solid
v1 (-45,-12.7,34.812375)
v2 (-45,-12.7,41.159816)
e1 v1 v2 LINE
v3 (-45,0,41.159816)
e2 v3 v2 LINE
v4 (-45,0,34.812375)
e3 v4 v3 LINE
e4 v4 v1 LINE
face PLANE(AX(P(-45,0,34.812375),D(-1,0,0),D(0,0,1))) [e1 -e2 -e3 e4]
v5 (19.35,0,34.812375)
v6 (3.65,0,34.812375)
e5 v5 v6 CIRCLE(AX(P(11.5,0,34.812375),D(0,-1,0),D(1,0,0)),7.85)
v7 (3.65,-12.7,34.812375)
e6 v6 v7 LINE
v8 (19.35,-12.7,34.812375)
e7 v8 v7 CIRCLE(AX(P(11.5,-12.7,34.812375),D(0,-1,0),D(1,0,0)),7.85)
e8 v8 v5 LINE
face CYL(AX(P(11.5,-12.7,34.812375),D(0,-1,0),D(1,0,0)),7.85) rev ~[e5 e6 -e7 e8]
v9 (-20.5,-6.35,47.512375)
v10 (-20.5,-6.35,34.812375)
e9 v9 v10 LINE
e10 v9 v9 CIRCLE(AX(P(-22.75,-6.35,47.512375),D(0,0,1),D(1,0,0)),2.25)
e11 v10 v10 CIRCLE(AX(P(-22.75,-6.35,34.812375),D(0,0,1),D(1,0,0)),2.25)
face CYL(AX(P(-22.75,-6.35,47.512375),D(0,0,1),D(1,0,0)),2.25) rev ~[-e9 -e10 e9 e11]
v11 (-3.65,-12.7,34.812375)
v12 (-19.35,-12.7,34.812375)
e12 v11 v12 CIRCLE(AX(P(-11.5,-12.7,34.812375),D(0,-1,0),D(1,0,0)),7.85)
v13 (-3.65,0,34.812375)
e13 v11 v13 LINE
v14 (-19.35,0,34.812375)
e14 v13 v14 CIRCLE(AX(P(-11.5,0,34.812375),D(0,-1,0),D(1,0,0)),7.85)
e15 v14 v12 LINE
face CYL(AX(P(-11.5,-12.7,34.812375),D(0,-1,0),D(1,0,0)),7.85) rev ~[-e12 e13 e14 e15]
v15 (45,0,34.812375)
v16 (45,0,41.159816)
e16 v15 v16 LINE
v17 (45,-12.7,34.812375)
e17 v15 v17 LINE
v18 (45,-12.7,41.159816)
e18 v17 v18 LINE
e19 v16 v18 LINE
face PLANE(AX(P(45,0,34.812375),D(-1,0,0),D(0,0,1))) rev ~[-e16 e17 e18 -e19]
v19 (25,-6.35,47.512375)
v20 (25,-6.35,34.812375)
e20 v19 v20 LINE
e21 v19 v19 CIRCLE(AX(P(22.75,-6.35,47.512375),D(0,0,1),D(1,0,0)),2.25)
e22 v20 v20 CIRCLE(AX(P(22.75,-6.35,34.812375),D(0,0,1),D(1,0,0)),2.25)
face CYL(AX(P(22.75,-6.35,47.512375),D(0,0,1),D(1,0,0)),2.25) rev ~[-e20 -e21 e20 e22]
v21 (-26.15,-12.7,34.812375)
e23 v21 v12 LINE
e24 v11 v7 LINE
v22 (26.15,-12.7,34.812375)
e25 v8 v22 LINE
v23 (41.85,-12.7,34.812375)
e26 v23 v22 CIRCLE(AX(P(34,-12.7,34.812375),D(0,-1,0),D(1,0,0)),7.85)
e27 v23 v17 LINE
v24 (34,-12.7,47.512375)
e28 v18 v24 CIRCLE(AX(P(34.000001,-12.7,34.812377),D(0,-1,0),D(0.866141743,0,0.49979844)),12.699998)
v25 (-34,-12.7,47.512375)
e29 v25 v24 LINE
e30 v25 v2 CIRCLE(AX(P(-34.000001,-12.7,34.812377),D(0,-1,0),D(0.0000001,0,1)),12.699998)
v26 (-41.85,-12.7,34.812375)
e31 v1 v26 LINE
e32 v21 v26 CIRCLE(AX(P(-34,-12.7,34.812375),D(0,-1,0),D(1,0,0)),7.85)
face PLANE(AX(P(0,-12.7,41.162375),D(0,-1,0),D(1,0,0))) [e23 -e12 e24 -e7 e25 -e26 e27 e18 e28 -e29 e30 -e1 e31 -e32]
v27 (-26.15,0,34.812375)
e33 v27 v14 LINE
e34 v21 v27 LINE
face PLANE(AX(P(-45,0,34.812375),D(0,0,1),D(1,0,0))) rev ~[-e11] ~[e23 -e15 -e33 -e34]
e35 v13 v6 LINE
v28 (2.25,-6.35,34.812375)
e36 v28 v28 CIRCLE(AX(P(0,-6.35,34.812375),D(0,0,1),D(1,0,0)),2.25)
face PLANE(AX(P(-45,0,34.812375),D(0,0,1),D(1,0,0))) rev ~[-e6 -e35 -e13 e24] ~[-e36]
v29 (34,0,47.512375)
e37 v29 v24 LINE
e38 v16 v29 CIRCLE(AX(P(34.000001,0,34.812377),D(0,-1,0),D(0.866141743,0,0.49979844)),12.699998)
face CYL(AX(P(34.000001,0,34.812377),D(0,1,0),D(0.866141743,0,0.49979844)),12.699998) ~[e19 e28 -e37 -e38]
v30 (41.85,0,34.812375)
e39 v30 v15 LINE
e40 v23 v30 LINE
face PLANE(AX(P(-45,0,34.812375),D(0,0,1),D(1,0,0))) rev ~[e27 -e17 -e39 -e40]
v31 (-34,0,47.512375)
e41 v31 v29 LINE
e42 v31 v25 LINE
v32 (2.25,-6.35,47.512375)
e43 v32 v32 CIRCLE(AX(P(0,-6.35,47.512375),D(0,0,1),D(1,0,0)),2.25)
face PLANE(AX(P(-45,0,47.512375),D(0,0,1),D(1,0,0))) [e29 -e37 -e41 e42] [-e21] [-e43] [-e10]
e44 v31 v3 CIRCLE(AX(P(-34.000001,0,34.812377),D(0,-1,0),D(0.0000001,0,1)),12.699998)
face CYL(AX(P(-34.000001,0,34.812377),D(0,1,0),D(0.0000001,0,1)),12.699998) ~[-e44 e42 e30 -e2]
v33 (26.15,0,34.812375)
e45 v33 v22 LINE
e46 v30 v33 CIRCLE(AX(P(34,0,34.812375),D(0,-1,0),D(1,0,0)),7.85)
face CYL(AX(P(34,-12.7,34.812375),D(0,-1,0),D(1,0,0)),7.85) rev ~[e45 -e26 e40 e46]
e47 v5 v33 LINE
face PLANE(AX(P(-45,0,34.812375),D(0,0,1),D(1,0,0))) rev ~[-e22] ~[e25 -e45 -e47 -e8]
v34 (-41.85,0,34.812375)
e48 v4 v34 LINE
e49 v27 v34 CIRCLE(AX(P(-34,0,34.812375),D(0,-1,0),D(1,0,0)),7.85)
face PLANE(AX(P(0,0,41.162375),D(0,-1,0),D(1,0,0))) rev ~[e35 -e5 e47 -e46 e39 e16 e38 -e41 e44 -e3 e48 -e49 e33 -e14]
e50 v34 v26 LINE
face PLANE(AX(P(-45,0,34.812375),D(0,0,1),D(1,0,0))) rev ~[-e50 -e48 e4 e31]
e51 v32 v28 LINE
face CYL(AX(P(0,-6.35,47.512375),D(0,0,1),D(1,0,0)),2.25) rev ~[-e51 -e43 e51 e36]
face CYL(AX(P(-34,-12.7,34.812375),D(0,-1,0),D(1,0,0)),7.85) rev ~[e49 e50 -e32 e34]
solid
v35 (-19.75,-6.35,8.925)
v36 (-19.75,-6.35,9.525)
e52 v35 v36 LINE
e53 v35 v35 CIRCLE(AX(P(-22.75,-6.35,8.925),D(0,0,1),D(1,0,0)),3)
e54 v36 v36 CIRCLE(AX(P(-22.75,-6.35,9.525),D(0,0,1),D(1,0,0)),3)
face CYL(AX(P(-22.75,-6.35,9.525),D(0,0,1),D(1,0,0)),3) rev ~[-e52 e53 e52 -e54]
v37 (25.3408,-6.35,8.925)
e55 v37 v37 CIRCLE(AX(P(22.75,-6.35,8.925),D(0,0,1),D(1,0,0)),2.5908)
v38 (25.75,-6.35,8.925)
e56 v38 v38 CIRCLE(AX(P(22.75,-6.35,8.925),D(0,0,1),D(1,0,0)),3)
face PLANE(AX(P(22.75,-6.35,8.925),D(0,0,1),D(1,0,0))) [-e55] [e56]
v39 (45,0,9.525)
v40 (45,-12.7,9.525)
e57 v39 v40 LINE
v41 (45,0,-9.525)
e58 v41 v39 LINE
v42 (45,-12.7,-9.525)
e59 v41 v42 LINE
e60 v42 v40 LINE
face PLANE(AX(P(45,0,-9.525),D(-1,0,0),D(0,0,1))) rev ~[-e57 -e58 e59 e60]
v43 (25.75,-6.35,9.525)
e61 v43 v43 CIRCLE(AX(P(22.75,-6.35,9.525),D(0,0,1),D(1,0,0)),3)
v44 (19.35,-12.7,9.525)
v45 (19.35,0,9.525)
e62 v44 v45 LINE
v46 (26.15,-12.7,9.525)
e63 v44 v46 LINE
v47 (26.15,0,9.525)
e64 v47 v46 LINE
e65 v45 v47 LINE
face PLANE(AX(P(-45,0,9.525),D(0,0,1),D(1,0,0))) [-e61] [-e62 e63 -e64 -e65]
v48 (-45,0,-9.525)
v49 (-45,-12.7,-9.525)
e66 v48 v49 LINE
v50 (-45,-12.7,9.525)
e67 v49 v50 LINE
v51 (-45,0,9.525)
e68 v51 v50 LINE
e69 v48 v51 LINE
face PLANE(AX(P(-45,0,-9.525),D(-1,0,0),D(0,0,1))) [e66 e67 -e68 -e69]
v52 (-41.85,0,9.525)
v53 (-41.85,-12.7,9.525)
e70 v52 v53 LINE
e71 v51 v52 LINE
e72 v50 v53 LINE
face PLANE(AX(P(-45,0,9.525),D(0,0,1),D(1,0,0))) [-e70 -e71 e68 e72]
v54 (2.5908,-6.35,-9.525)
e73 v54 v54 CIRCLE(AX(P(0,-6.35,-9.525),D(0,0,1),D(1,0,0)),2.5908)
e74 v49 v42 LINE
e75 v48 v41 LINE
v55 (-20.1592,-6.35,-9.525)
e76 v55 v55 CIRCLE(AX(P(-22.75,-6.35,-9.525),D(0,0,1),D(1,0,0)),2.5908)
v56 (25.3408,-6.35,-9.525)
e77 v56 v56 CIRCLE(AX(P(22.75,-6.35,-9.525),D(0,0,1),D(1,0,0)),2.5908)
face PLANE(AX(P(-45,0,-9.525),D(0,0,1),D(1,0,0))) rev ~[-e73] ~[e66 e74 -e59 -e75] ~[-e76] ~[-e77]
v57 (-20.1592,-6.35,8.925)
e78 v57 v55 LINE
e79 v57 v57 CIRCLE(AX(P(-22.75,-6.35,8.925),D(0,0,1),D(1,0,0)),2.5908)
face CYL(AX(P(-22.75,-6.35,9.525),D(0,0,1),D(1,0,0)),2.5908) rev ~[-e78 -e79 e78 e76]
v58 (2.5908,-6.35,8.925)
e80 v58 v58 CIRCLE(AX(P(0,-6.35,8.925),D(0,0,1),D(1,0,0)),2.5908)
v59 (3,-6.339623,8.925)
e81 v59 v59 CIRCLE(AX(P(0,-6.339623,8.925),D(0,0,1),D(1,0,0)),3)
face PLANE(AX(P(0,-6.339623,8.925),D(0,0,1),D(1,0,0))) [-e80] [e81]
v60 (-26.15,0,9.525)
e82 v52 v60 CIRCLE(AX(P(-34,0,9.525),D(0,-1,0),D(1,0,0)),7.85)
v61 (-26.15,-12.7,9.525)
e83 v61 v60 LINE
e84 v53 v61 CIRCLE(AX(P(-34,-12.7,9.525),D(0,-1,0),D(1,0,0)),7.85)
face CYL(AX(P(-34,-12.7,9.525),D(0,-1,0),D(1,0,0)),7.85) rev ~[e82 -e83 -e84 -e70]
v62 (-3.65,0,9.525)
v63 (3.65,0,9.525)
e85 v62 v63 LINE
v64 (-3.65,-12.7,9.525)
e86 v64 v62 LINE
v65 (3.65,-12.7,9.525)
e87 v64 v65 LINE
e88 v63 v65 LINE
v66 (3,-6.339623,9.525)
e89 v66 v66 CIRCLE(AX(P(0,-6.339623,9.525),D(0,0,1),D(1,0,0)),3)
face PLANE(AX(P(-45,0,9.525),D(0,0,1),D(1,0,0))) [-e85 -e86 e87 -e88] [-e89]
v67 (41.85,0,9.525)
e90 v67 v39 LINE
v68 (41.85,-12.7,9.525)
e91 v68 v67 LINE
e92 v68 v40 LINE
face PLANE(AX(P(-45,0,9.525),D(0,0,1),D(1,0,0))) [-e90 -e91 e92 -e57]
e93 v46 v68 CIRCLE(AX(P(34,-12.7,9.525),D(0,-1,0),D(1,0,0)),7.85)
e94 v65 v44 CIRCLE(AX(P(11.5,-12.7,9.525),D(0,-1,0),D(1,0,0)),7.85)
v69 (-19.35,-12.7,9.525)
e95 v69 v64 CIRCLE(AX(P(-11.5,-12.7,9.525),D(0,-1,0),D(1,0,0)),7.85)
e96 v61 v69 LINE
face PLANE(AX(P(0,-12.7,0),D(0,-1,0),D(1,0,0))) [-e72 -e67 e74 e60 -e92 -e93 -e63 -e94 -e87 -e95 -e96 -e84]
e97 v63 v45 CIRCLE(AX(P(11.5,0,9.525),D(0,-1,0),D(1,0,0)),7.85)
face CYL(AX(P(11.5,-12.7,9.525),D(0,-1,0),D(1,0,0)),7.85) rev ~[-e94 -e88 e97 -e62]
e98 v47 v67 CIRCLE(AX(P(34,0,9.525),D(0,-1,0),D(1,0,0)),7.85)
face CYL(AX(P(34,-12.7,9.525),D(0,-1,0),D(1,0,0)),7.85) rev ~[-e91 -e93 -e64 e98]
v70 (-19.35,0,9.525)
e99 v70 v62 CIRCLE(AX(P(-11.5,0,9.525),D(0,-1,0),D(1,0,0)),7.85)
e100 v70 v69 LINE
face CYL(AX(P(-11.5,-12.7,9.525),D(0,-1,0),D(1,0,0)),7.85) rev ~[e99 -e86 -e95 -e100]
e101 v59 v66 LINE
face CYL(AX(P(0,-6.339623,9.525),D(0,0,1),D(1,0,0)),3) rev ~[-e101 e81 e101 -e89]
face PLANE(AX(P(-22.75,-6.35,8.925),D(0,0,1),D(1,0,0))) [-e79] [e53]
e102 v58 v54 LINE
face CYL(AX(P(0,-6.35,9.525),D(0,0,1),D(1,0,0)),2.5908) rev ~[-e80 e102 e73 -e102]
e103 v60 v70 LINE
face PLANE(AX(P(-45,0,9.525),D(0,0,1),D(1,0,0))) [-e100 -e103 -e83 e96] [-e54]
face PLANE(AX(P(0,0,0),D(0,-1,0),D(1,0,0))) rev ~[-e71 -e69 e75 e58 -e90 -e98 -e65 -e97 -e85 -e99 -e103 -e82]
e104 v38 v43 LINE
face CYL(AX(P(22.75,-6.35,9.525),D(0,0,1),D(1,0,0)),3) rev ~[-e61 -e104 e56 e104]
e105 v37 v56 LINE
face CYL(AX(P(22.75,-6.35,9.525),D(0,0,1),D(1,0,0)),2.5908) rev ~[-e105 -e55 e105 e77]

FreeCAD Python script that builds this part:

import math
import FreeCAD as App
import Part
import Sketcher

V = App.Vector
Q = App.Units.Quantity


def add_polygon(sketch, points):
    """Adds a closed chain of lines whose ends are joined by coincident constraints."""
    first, n = sketch.GeometryCount, len(points)
    for a, b in zip(points, points[1:] + points[:1]):
        sketch.addGeometry(Part.LineSegment(App.Vector(*a, 0), App.Vector(*b, 0)), False)
    for i in range(n):
        sketch.addConstraint(Sketcher.Constraint("Coincident", first + i, 2, first + (i + 1) % n, 1))

doc = App.newDocument("Part")
body = doc.addObject("PartDesign::Body", "Body")

sketch1 = body.newObject("Sketcher::SketchObject", "Sketch")
sketch1.AttachmentSupport = (doc.getObject("XZ_Plane"), [""])
sketch1.MapMode = "FlatFace"
add_polygon(sketch1, [(-45, 10), (-45, -10), (45, -10), (45, 10)])
sketch1.addConstraint(Sketcher.Constraint("Vertical", 0))
sketch1.addConstraint(Sketcher.Constraint("Horizontal", 1))
sketch1.addConstraint(Sketcher.Constraint("Vertical", 2))
sketch1.addConstraint(Sketcher.Constraint("Horizontal", 3))
sketch1.addConstraint(Sketcher.Constraint("Symmetric", 0, 2, 2, 2, -1, 1))
sketch1.addConstraint(Sketcher.Constraint("DistanceX", 1, 1, 1, 2, Q("90 mm")))
sketch1.addConstraint(Sketcher.Constraint("DistanceY", 0, 2, 0, 1, Q("19.05 mm")))
pad1 = body.newObject("PartDesign::Pad", "Pad")
pad1.Profile = sketch1
pad1.Length = 12.7

sketch2 = body.newObject("Sketcher::SketchObject", "Sketch001")
sketch2.AttachmentSupport = (doc.getObject("XZ_Plane"), [""])
sketch2.MapMode = "FlatFace"
sketch2.AttachmentOffset = App.Placement(V(0, 0, 12.7), App.Rotation())
sketch2.addGeometry(Part.Circle(V(-34, 10, 0), V(0, 0, 1), 8), False)
sketch2.addGeometry(Part.Circle(V(-12, 10, 0), V(0, 0, 1), 8), False)
sketch2.addGeometry(Part.Circle(V(12, 10, 0), V(0, 0, 1), 8), False)
sketch2.addGeometry(Part.Circle(V(34, 10, 0), V(0, 0, 1), 8), False)
sketch2.addConstraint(Sketcher.Constraint("Equal", 0, 1))
sketch2.addConstraint(Sketcher.Constraint("Equal", 1, 2))
sketch2.addConstraint(Sketcher.Constraint("Equal", 2, 3))
sketch2.addConstraint(Sketcher.Constraint("Symmetric", 1, 3, 2, 3, -2))
sketch2.addConstraint(Sketcher.Constraint("Symmetric", 0, 3, 3, 3, -2))
sketch2.addConstraint(Sketcher.Constraint("Horizontal", 0, 3, 1, 3))
sketch2.addConstraint(Sketcher.Constraint("Diameter", 0, Q("15.7 mm")))
sketch2.addConstraint(Sketcher.Constraint("DistanceX", 0, 3, -1, 1, Q("34 mm")))
sketch2.addConstraint(Sketcher.Constraint("DistanceX", 1, 3, 2, 3, Q("23 mm")))
sketch2.addConstraint(Sketcher.Constraint("DistanceY", -1, 1, 0, 3, Q("9.525 mm")))
pocket1 = body.newObject("PartDesign::Pocket", "Pocket")
pocket1.Profile = sketch2
pocket1.Length = 25.4

sketch3 = body.newObject("Sketcher::SketchObject", "Sketch002")
sketch3.AttachmentSupport = (doc.getObject("XY_Plane"), [""])
sketch3.MapMode = "FlatFace"
sketch3.AttachmentOffset = App.Placement(V(0, 0, 9.525), App.Rotation())
sketch3.addGeometry(Part.Circle(V(-22.8, -6.3, 0), V(0, 0, 1), 2.6), False)
sketch3.addGeometry(Part.Circle(V(0, -6.3, 0), V(0, 0, 1), 2.6), False)
sketch3.addGeometry(Part.Circle(V(22.8, -6.3, 0), V(0, 0, 1), 2.6), False)
sketch3.addConstraint(Sketcher.Constraint("Equal", 0, 1))
sketch3.addConstraint(Sketcher.Constraint("Equal", 1, 2))
sketch3.addConstraint(Sketcher.Constraint("Symmetric", 0, 3, 2, 3, -2))
sketch3.addConstraint(Sketcher.Constraint("PointOnObject", 1, 3, -2))
sketch3.addConstraint(Sketcher.Constraint("Horizontal", 0, 3, 1, 3))
sketch3.addConstraint(Sketcher.Constraint("Diameter", 0, Q("5.1816 mm")))
sketch3.addConstraint(Sketcher.Constraint("DistanceX", 0, 3, 2, 3, Q("45.5 mm")))
sketch3.addConstraint(Sketcher.Constraint("DistanceY", 0, 3, -1, 1, Q("6.35 mm")))
pocket2 = body.newObject("PartDesign::Pocket", "Pocket001")
pocket2.Profile = sketch3
pocket2.Length = 20

sketch4 = body.newObject("Sketcher::SketchObject", "Sketch003")
sketch4.AttachmentSupport = (doc.getObject("XY_Plane"), [""])
sketch4.MapMode = "FlatFace"
sketch4.AttachmentOffset = App.Placement(V(0, 0, 9.525), App.Rotation())
sketch4.addGeometry(Part.Circle(V(-22.8, -6.3, 0), V(0, 0, 1), 3), False)
sketch4.addGeometry(Part.Circle(V(22.8, -6.3, 0), V(0, 0, 1), 3), False)
sketch4.addGeometry(Part.Circle(V(0, -6.3, 0), V(0, 0, 1), 3), False)
sketch4.addConstraint(Sketcher.Constraint("Equal", 0, 1))
sketch4.addConstraint(Sketcher.Constraint("Equal", 1, 2))
sketch4.addConstraint(Sketcher.Constraint("Symmetric", 0, 3, 1, 3, -2))
sketch4.addConstraint(Sketcher.Constraint("PointOnObject", 2, 3, -2))
sketch4.addConstraint(Sketcher.Constraint("Diameter", 0, Q("6 mm")))
sketch4.addConstraint(Sketcher.Constraint("DistanceX", 0, 3, 1, 3, Q("45.5 mm")))
sketch4.addConstraint(Sketcher.Constraint("DistanceY", 0, 3, -1, 1, Q("6.35 mm")))
sketch4.addConstraint(Sketcher.Constraint("DistanceY", 2, 3, -1, 1, Q("6.339623 mm")))
pocket3 = body.newObject("PartDesign::Pocket", "Pocket002")
pocket3.Profile = sketch4
pocket3.Length = 0.5

sketch5 = body.newObject("Sketcher::SketchObject", "Sketch004")
sketch5.AttachmentSupport = (doc.getObject("XY_Plane"), [""])
sketch5.MapMode = "FlatFace"
sketch5.AttachmentOffset = App.Placement(V(0, 0, 9.525), App.Rotation())
sketch5.addGeometry(Part.Circle(V(-22.8, -6.3, 0), V(0, 0, 1), 3), False)
sketch5.addGeometry(Part.Circle(V(22.8, -6.3, 0), V(0, 0, 1), 3), False)
sketch5.addGeometry(Part.Circle(V(0, -6.3, 0), V(0, 0, 1), 3), False)
sketch5.addConstraint(Sketcher.Constraint("Equal", 0, 1))
sketch5.addConstraint(Sketcher.Constraint("Equal", 1, 2))
sketch5.addConstraint(Sketcher.Constraint("Symmetric", 0, 3, 1, 3, -2))
sketch5.addConstraint(Sketcher.Constraint("PointOnObject", 2, 3, -2))
sketch5.addConstraint(Sketcher.Constraint("Diameter", 0, Q("6 mm")))
sketch5.addConstraint(Sketcher.Constraint("DistanceX", 0, 3, 1, 3, Q("45.5 mm")))
sketch5.addConstraint(Sketcher.Constraint("DistanceY", 0, 3, -1, 1, Q("6.35 mm")))
sketch5.addConstraint(Sketcher.Constraint("DistanceY", 2, 3, -1, 1, Q("6.339623 mm")))
pocket4 = body.newObject("PartDesign::Pocket", "Pocket003")
pocket4.Profile = sketch5
pocket4.Length = 0.6
body2 = doc.addObject("PartDesign::Body", "Body001")

sketch6 = body2.newObject("Sketcher::SketchObject", "Sketch005")
sketch6.AttachmentSupport = (doc.getObject("XZ_Plane001"), [""])
sketch6.MapMode = "FlatFace"
add_polygon(sketch6, [(-45, 48), (-45, 35), (45, 35), (45, 48)])
sketch6.addConstraint(Sketcher.Constraint("Vertical", 0))
sketch6.addConstraint(Sketcher.Constraint("Horizontal", 1))
sketch6.addConstraint(Sketcher.Constraint("Vertical", 2))
sketch6.addConstraint(Sketcher.Constraint("Horizontal", 3))
sketch6.addConstraint(Sketcher.Constraint("DistanceX", 1, 1, 1, 2, Q("90 mm")))
sketch6.addConstraint(Sketcher.Constraint("DistanceY", 0, 2, 0, 1, Q("12.7 mm")))
sketch6.addConstraint(Sketcher.Constraint("DistanceX", 0, 2, -1, 1, Q("45 mm")))
sketch6.addConstraint(Sketcher.Constraint("DistanceY", -1, 1, 0, 2, Q("34.812375 mm")))
pad2 = body2.newObject("PartDesign::Pad", "Pad001")
pad2.Profile = sketch6
pad2.Length = 12.7

sketch7 = body2.newObject("Sketcher::SketchObject", "Sketch006")
sketch7.AttachmentSupport = (doc.getObject("XZ_Plane001"), [""])
sketch7.MapMode = "FlatFace"
sketch7.AttachmentOffset = App.Placement(V(0, 0, 12.7), App.Rotation())
sketch7.addGeometry(Part.Circle(V(-34, 35, 0), V(0, 0, 1), 8), False)
sketch7.addGeometry(Part.Circle(V(-12, 35, 0), V(0, 0, 1), 8), False)
sketch7.addGeometry(Part.Circle(V(12, 35, 0), V(0, 0, 1), 8), False)
sketch7.addGeometry(Part.Circle(V(34, 35, 0), V(0, 0, 1), 8), False)
sketch7.addConstraint(Sketcher.Constraint("Equal", 0, 1))
sketch7.addConstraint(Sketcher.Constraint("Equal", 1, 2))
sketch7.addConstraint(Sketcher.Constraint("Equal", 2, 3))
sketch7.addConstraint(Sketcher.Constraint("Symmetric", 1, 3, 2, 3, -2))
sketch7.addConstraint(Sketcher.Constraint("Symmetric", 0, 3, 3, 3, -2))
sketch7.addConstraint(Sketcher.Constraint("Horizontal", 0, 3, 1, 3))
sketch7.addConstraint(Sketcher.Constraint("Diameter", 0, Q("15.7 mm")))
sketch7.addConstraint(Sketcher.Constraint("DistanceX", 0, 3, -1, 1, Q("34 mm")))
sketch7.addConstraint(Sketcher.Constraint("DistanceX", 1, 3, 2, 3, Q("23 mm")))
sketch7.addConstraint(Sketcher.Constraint("DistanceY", -1, 1, 0, 3, Q("34.812375 mm")))
pocket5 = body2.newObject("PartDesign::Pocket", "Pocket004")
pocket5.Profile = sketch7
pocket5.Length = 25.4

sketch8 = body2.newObject("Sketcher::SketchObject", "Sketch007")
sketch8.AttachmentSupport = (doc.getObject("XY_Plane001"), [""])
sketch8.MapMode = "FlatFace"
sketch8.AttachmentOffset = App.Placement(V(0, 0, 47.512375), App.Rotation())
sketch8.addGeometry(Part.Circle(V(-22.8, -6.3, 0), V(0, 0, 1), 2.2), False)
sketch8.addGeometry(Part.Circle(V(0, -6.3, 0), V(0, 0, 1), 2.2), False)
sketch8.addGeometry(Part.Circle(V(22.8, -6.3, 0), V(0, 0, 1), 2.2), False)
sketch8.addConstraint(Sketcher.Constraint("Equal", 0, 1))
sketch8.addConstraint(Sketcher.Constraint("Equal", 1, 2))
sketch8.addConstraint(Sketcher.Constraint("Symmetric", 0, 3, 2, 3, -2))
sketch8.addConstraint(Sketcher.Constraint("PointOnObject", 1, 3, -2))
sketch8.addConstraint(Sketcher.Constraint("Horizontal", 0, 3, 1, 3))
sketch8.addConstraint(Sketcher.Constraint("Diameter", 0, Q("4.5 mm")))
sketch8.addConstraint(Sketcher.Constraint("DistanceX", 0, 3, 2, 3, Q("45.5 mm")))
sketch8.addConstraint(Sketcher.Constraint("DistanceY", 0, 3, -1, 1, Q("6.35 mm")))
pocket6 = body2.newObject("PartDesign::Pocket", "Pocket005")
pocket6.Profile = sketch8
pocket6.Length = 25.4

sketch9 = body2.newObject("Sketcher::SketchObject", "Sketch008")
sketch9.AttachmentSupport = (doc.getObject("XZ_Plane001"), [""])
sketch9.MapMode = "FlatFace"
sketch9.addGeometry(Part.ArcOfCircle(Part.Circle(V(-34, 35, 0), V(0, 0, 1), 13), math.radians(90), math.radians(150)), False)
sketch9.addGeometry(Part.LineSegment(V(-45, 41, 0), V(-45, 48, 0)), False)
sketch9.addGeometry(Part.LineSegment(V(-45, 48, 0), V(-34, 48, 0)), False)
sketch9.addGeometry(Part.ArcOfCircle(Part.Circle(V(34, 35, 0), V(0, 0, 1), 13), math.radians(30), math.radians(90)), False)
sketch9.addGeometry(Part.LineSegment(V(34, 48, 0), V(45, 48, 0)), False)
sketch9.addGeometry(Part.LineSegment(V(45, 48, 0), V(45, 41, 0)), False)
sketch9.addConstraint(Sketcher.Constraint("Coincident", 0, 2, 1, 1))
sketch9.addConstraint(Sketcher.Constraint("Coincident", 1, 2, 2, 1))
sketch9.addConstraint(Sketcher.Constraint("Tangent", 2, 2, 0, 1))
sketch9.addConstraint(Sketcher.Constraint("Tangent", 3, 2, 4, 1))
sketch9.addConstraint(Sketcher.Constraint("Coincident", 4, 2, 5, 1))
sketch9.addConstraint(Sketcher.Constraint("Coincident", 5, 2, 3, 1))
sketch9.addConstraint(Sketcher.Constraint("Vertical", 1))
sketch9.addConstraint(Sketcher.Constraint("Horizontal", 2))
sketch9.addConstraint(Sketcher.Constraint("Horizontal", 4))
sketch9.addConstraint(Sketcher.Constraint("Vertical", 5))
sketch9.addConstraint(Sketcher.Constraint("Equal", 0, 3))
sketch9.addConstraint(Sketcher.Constraint("Symmetric", 0, 3, 3, 3, -2))
sketch9.addConstraint(Sketcher.Constraint("Horizontal", 0, 2, 5, 2))
sketch9.addConstraint(Sketcher.Constraint("Radius", 0, Q("12.699998 mm")))
sketch9.addConstraint(Sketcher.Constraint("DistanceX", 2, 1, 2, 2, Q("11 mm")))
sketch9.addConstraint(Sketcher.Constraint("DistanceX", 0, 3, -1, 1, Q("34.000001 mm")))
sketch9.addConstraint(Sketcher.Constraint("DistanceY", -1, 1, 0, 3, Q("34.812377 mm")))
pocket7 = body2.newObject("PartDesign::Pocket", "Pocket006")
pocket7.Profile = sketch9
pocket7.Type = "ThroughAll"
pocket7.Reversed = True

doc.recompute()
